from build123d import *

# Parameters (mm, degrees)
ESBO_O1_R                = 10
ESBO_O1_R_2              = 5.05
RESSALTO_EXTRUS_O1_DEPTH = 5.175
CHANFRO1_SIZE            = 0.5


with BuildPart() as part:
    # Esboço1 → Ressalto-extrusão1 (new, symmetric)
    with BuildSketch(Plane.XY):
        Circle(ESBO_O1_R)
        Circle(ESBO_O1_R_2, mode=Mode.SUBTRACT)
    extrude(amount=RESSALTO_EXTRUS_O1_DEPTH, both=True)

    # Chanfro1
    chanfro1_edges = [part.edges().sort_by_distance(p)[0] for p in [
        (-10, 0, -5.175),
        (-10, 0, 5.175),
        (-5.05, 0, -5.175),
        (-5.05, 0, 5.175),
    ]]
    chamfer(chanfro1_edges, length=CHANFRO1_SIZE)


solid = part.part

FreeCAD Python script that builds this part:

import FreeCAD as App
import Part
import Sketcher
from FreeCAD import Vector


def edges_at(feature, points):
    """Names of the edges that pass closest to the given points."""
    edges = feature.Shape.Edges
    near = lambda p: min(range(len(edges)), key=lambda i: edges[i].distToShape(Part.Vertex(*p))[0])
    return sorted({f"Edge{near(p) + 1}" for p in points})

doc = App.newDocument("Part")
params = doc.addObject("Spreadsheet::Sheet", "Params")
for row, (alias, value) in enumerate([
    ("sketch1_diameter", "20 mm"),
    ("sketch1_diameter2", "10.1 mm"),
    ("pad1_length", "10.35 mm"),
    ("chamfer_size", "0.5 mm"),
], start=1):
    params.set(f"A{row}", alias)
    params.set(f"B{row}", "=" + value)
    params.setAlias(f"B{row}", alias)

body = doc.addObject("PartDesign::Body", "Body")

# Sketch on XY plane
sketch1 = body.newObject("Sketcher::SketchObject", "Sketch")
sketch1.AttachmentSupport = (doc.getObject("XY_Plane"), [""])
sketch1.MapMode = "FlatFace"
sketch1.addGeometry([
    Part.Circle(Vector(0, 0, 0), Vector(0, 0, 1), 10),
    Part.Circle(Vector(0, 0, 0), Vector(0, 0, 1), 5),
], False)
sketch1.addConstraint([
    Sketcher.Constraint("Coincident", 0, 3, -1, 1),
    Sketcher.Constraint("Coincident", 1, 3, -1, 1),
    Sketcher.Constraint("Diameter", 0, 20.0),
    Sketcher.Constraint("Diameter", 1, 10.1),
])
sketch1.setExpression("Constraints[2]", "Params.sketch1_diameter")
sketch1.setExpression("Constraints[3]", "Params.sketch1_diameter2")
pad1 = body.newObject("PartDesign::Pad", "Pad")
pad1.Profile = sketch1
pad1.setExpression("Length", "Params.pad1_length")
pad1.Midplane = True
doc.recompute()

chamfer = body.newObject("PartDesign::Chamfer", "Chamfer")
chamfer.Base = (pad1, edges_at(pad1, [
    (-10, 0, -5.175),
    (-10, 0, 5.175),
    (-5.05, 0, -5.175),
    (-5.05, 0, 5.175),
]))
chamfer.setExpression("Size", "Params.chamfer_size")

doc.recompute()
